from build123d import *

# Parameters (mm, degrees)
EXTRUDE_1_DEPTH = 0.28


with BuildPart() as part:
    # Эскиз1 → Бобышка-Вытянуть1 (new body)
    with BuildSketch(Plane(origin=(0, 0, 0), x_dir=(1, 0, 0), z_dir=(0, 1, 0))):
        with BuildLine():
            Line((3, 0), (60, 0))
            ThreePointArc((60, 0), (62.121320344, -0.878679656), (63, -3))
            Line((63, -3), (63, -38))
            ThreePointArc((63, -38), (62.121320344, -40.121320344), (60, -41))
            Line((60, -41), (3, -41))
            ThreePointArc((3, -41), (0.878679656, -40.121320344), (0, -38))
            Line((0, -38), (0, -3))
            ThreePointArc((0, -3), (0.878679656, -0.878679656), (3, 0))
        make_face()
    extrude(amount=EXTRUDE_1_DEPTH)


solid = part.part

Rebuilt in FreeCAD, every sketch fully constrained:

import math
import FreeCAD as App
import Part
import Sketcher

doc = App.newDocument("Part")
body = doc.addObject("PartDesign::Body", "Body")

# Sketch on XZ plane
sketch1 = body.newObject("Sketcher::SketchObject", "Sketch")
sketch1.AttachmentSupport = (doc.getObject("XZ_Plane"), [""])
sketch1.MapMode = "FlatFace"
sketch1.addGeometry([
    Part.LineSegment(App.Vector(60, 0, 0), App.Vector(3, 0, 0)),  # 0
    Part.ArcOfCircle(Part.Circle(App.Vector(3, 3, 0), App.Vector(0, 0, 1), 3), math.radians(180), math.radians(270)),  # 1
    Part.LineSegment(App.Vector(0, 3, 0), App.Vector(0, 38, 0)),  # 2
    Part.ArcOfCircle(Part.Circle(App.Vector(3, 38, 0), App.Vector(0, 0, 1), 3), math.radians(90), math.radians(180)),  # 3
    Part.LineSegment(App.Vector(3, 41, 0), App.Vector(60, 41, 0)),  # 4
    Part.ArcOfCircle(Part.Circle(App.Vector(60, 38, 0), App.Vector(0, 0, 1), 3), math.radians(0), math.radians(90)),  # 5
    Part.LineSegment(App.Vector(63, 38, 0), App.Vector(63, 3, 0)),  # 6
    Part.ArcOfCircle(Part.Circle(App.Vector(60, 3, 0), App.Vector(0, 0, 1), 3), math.radians(-90), math.radians(0)),  # 7
], False)
sketch1.addConstraint([
    Sketcher.Constraint("Tangent", 0, 2, 1, 2),
    Sketcher.Constraint("Tangent", 1, 1, 2, 1),
    Sketcher.Constraint("Tangent", 2, 2, 3, 2),
    Sketcher.Constraint("Tangent", 3, 1, 4, 1),
    Sketcher.Constraint("Tangent", 4, 2, 5, 2),
    Sketcher.Constraint("Tangent", 5, 1, 6, 1),
    Sketcher.Constraint("Tangent", 6, 2, 7, 2),
    Sketcher.Constraint("Tangent", 7, 1, 0, 1),
    Sketcher.Constraint("Horizontal", 0),
    Sketcher.Constraint("Vertical", 2),
    Sketcher.Constraint("Horizontal", 4),
    Sketcher.Constraint("Vertical", 6),
    Sketcher.Constraint("Equal", 1, 3),
    Sketcher.Constraint("Equal", 3, 5),
    Sketcher.Constraint("Equal", 5, 7),
    Sketcher.Constraint("PointOnObject", 0, 2, -1),
    Sketcher.Constraint("PointOnObject", 1, 1, -2),
    Sketcher.Constraint("Radius", 1, 3.0),
    Sketcher.Constraint("DistanceX", 0, 2, 0, 1, 57.0),
    Sketcher.Constraint("DistanceY", 2, 1, 2, 2, 35.0),
])
pad1 = body.newObject("PartDesign::Pad", "Pad")
pad1.Profile = sketch1
pad1.Length = 0.28
pad1.Reversed = True

doc.recompute()
